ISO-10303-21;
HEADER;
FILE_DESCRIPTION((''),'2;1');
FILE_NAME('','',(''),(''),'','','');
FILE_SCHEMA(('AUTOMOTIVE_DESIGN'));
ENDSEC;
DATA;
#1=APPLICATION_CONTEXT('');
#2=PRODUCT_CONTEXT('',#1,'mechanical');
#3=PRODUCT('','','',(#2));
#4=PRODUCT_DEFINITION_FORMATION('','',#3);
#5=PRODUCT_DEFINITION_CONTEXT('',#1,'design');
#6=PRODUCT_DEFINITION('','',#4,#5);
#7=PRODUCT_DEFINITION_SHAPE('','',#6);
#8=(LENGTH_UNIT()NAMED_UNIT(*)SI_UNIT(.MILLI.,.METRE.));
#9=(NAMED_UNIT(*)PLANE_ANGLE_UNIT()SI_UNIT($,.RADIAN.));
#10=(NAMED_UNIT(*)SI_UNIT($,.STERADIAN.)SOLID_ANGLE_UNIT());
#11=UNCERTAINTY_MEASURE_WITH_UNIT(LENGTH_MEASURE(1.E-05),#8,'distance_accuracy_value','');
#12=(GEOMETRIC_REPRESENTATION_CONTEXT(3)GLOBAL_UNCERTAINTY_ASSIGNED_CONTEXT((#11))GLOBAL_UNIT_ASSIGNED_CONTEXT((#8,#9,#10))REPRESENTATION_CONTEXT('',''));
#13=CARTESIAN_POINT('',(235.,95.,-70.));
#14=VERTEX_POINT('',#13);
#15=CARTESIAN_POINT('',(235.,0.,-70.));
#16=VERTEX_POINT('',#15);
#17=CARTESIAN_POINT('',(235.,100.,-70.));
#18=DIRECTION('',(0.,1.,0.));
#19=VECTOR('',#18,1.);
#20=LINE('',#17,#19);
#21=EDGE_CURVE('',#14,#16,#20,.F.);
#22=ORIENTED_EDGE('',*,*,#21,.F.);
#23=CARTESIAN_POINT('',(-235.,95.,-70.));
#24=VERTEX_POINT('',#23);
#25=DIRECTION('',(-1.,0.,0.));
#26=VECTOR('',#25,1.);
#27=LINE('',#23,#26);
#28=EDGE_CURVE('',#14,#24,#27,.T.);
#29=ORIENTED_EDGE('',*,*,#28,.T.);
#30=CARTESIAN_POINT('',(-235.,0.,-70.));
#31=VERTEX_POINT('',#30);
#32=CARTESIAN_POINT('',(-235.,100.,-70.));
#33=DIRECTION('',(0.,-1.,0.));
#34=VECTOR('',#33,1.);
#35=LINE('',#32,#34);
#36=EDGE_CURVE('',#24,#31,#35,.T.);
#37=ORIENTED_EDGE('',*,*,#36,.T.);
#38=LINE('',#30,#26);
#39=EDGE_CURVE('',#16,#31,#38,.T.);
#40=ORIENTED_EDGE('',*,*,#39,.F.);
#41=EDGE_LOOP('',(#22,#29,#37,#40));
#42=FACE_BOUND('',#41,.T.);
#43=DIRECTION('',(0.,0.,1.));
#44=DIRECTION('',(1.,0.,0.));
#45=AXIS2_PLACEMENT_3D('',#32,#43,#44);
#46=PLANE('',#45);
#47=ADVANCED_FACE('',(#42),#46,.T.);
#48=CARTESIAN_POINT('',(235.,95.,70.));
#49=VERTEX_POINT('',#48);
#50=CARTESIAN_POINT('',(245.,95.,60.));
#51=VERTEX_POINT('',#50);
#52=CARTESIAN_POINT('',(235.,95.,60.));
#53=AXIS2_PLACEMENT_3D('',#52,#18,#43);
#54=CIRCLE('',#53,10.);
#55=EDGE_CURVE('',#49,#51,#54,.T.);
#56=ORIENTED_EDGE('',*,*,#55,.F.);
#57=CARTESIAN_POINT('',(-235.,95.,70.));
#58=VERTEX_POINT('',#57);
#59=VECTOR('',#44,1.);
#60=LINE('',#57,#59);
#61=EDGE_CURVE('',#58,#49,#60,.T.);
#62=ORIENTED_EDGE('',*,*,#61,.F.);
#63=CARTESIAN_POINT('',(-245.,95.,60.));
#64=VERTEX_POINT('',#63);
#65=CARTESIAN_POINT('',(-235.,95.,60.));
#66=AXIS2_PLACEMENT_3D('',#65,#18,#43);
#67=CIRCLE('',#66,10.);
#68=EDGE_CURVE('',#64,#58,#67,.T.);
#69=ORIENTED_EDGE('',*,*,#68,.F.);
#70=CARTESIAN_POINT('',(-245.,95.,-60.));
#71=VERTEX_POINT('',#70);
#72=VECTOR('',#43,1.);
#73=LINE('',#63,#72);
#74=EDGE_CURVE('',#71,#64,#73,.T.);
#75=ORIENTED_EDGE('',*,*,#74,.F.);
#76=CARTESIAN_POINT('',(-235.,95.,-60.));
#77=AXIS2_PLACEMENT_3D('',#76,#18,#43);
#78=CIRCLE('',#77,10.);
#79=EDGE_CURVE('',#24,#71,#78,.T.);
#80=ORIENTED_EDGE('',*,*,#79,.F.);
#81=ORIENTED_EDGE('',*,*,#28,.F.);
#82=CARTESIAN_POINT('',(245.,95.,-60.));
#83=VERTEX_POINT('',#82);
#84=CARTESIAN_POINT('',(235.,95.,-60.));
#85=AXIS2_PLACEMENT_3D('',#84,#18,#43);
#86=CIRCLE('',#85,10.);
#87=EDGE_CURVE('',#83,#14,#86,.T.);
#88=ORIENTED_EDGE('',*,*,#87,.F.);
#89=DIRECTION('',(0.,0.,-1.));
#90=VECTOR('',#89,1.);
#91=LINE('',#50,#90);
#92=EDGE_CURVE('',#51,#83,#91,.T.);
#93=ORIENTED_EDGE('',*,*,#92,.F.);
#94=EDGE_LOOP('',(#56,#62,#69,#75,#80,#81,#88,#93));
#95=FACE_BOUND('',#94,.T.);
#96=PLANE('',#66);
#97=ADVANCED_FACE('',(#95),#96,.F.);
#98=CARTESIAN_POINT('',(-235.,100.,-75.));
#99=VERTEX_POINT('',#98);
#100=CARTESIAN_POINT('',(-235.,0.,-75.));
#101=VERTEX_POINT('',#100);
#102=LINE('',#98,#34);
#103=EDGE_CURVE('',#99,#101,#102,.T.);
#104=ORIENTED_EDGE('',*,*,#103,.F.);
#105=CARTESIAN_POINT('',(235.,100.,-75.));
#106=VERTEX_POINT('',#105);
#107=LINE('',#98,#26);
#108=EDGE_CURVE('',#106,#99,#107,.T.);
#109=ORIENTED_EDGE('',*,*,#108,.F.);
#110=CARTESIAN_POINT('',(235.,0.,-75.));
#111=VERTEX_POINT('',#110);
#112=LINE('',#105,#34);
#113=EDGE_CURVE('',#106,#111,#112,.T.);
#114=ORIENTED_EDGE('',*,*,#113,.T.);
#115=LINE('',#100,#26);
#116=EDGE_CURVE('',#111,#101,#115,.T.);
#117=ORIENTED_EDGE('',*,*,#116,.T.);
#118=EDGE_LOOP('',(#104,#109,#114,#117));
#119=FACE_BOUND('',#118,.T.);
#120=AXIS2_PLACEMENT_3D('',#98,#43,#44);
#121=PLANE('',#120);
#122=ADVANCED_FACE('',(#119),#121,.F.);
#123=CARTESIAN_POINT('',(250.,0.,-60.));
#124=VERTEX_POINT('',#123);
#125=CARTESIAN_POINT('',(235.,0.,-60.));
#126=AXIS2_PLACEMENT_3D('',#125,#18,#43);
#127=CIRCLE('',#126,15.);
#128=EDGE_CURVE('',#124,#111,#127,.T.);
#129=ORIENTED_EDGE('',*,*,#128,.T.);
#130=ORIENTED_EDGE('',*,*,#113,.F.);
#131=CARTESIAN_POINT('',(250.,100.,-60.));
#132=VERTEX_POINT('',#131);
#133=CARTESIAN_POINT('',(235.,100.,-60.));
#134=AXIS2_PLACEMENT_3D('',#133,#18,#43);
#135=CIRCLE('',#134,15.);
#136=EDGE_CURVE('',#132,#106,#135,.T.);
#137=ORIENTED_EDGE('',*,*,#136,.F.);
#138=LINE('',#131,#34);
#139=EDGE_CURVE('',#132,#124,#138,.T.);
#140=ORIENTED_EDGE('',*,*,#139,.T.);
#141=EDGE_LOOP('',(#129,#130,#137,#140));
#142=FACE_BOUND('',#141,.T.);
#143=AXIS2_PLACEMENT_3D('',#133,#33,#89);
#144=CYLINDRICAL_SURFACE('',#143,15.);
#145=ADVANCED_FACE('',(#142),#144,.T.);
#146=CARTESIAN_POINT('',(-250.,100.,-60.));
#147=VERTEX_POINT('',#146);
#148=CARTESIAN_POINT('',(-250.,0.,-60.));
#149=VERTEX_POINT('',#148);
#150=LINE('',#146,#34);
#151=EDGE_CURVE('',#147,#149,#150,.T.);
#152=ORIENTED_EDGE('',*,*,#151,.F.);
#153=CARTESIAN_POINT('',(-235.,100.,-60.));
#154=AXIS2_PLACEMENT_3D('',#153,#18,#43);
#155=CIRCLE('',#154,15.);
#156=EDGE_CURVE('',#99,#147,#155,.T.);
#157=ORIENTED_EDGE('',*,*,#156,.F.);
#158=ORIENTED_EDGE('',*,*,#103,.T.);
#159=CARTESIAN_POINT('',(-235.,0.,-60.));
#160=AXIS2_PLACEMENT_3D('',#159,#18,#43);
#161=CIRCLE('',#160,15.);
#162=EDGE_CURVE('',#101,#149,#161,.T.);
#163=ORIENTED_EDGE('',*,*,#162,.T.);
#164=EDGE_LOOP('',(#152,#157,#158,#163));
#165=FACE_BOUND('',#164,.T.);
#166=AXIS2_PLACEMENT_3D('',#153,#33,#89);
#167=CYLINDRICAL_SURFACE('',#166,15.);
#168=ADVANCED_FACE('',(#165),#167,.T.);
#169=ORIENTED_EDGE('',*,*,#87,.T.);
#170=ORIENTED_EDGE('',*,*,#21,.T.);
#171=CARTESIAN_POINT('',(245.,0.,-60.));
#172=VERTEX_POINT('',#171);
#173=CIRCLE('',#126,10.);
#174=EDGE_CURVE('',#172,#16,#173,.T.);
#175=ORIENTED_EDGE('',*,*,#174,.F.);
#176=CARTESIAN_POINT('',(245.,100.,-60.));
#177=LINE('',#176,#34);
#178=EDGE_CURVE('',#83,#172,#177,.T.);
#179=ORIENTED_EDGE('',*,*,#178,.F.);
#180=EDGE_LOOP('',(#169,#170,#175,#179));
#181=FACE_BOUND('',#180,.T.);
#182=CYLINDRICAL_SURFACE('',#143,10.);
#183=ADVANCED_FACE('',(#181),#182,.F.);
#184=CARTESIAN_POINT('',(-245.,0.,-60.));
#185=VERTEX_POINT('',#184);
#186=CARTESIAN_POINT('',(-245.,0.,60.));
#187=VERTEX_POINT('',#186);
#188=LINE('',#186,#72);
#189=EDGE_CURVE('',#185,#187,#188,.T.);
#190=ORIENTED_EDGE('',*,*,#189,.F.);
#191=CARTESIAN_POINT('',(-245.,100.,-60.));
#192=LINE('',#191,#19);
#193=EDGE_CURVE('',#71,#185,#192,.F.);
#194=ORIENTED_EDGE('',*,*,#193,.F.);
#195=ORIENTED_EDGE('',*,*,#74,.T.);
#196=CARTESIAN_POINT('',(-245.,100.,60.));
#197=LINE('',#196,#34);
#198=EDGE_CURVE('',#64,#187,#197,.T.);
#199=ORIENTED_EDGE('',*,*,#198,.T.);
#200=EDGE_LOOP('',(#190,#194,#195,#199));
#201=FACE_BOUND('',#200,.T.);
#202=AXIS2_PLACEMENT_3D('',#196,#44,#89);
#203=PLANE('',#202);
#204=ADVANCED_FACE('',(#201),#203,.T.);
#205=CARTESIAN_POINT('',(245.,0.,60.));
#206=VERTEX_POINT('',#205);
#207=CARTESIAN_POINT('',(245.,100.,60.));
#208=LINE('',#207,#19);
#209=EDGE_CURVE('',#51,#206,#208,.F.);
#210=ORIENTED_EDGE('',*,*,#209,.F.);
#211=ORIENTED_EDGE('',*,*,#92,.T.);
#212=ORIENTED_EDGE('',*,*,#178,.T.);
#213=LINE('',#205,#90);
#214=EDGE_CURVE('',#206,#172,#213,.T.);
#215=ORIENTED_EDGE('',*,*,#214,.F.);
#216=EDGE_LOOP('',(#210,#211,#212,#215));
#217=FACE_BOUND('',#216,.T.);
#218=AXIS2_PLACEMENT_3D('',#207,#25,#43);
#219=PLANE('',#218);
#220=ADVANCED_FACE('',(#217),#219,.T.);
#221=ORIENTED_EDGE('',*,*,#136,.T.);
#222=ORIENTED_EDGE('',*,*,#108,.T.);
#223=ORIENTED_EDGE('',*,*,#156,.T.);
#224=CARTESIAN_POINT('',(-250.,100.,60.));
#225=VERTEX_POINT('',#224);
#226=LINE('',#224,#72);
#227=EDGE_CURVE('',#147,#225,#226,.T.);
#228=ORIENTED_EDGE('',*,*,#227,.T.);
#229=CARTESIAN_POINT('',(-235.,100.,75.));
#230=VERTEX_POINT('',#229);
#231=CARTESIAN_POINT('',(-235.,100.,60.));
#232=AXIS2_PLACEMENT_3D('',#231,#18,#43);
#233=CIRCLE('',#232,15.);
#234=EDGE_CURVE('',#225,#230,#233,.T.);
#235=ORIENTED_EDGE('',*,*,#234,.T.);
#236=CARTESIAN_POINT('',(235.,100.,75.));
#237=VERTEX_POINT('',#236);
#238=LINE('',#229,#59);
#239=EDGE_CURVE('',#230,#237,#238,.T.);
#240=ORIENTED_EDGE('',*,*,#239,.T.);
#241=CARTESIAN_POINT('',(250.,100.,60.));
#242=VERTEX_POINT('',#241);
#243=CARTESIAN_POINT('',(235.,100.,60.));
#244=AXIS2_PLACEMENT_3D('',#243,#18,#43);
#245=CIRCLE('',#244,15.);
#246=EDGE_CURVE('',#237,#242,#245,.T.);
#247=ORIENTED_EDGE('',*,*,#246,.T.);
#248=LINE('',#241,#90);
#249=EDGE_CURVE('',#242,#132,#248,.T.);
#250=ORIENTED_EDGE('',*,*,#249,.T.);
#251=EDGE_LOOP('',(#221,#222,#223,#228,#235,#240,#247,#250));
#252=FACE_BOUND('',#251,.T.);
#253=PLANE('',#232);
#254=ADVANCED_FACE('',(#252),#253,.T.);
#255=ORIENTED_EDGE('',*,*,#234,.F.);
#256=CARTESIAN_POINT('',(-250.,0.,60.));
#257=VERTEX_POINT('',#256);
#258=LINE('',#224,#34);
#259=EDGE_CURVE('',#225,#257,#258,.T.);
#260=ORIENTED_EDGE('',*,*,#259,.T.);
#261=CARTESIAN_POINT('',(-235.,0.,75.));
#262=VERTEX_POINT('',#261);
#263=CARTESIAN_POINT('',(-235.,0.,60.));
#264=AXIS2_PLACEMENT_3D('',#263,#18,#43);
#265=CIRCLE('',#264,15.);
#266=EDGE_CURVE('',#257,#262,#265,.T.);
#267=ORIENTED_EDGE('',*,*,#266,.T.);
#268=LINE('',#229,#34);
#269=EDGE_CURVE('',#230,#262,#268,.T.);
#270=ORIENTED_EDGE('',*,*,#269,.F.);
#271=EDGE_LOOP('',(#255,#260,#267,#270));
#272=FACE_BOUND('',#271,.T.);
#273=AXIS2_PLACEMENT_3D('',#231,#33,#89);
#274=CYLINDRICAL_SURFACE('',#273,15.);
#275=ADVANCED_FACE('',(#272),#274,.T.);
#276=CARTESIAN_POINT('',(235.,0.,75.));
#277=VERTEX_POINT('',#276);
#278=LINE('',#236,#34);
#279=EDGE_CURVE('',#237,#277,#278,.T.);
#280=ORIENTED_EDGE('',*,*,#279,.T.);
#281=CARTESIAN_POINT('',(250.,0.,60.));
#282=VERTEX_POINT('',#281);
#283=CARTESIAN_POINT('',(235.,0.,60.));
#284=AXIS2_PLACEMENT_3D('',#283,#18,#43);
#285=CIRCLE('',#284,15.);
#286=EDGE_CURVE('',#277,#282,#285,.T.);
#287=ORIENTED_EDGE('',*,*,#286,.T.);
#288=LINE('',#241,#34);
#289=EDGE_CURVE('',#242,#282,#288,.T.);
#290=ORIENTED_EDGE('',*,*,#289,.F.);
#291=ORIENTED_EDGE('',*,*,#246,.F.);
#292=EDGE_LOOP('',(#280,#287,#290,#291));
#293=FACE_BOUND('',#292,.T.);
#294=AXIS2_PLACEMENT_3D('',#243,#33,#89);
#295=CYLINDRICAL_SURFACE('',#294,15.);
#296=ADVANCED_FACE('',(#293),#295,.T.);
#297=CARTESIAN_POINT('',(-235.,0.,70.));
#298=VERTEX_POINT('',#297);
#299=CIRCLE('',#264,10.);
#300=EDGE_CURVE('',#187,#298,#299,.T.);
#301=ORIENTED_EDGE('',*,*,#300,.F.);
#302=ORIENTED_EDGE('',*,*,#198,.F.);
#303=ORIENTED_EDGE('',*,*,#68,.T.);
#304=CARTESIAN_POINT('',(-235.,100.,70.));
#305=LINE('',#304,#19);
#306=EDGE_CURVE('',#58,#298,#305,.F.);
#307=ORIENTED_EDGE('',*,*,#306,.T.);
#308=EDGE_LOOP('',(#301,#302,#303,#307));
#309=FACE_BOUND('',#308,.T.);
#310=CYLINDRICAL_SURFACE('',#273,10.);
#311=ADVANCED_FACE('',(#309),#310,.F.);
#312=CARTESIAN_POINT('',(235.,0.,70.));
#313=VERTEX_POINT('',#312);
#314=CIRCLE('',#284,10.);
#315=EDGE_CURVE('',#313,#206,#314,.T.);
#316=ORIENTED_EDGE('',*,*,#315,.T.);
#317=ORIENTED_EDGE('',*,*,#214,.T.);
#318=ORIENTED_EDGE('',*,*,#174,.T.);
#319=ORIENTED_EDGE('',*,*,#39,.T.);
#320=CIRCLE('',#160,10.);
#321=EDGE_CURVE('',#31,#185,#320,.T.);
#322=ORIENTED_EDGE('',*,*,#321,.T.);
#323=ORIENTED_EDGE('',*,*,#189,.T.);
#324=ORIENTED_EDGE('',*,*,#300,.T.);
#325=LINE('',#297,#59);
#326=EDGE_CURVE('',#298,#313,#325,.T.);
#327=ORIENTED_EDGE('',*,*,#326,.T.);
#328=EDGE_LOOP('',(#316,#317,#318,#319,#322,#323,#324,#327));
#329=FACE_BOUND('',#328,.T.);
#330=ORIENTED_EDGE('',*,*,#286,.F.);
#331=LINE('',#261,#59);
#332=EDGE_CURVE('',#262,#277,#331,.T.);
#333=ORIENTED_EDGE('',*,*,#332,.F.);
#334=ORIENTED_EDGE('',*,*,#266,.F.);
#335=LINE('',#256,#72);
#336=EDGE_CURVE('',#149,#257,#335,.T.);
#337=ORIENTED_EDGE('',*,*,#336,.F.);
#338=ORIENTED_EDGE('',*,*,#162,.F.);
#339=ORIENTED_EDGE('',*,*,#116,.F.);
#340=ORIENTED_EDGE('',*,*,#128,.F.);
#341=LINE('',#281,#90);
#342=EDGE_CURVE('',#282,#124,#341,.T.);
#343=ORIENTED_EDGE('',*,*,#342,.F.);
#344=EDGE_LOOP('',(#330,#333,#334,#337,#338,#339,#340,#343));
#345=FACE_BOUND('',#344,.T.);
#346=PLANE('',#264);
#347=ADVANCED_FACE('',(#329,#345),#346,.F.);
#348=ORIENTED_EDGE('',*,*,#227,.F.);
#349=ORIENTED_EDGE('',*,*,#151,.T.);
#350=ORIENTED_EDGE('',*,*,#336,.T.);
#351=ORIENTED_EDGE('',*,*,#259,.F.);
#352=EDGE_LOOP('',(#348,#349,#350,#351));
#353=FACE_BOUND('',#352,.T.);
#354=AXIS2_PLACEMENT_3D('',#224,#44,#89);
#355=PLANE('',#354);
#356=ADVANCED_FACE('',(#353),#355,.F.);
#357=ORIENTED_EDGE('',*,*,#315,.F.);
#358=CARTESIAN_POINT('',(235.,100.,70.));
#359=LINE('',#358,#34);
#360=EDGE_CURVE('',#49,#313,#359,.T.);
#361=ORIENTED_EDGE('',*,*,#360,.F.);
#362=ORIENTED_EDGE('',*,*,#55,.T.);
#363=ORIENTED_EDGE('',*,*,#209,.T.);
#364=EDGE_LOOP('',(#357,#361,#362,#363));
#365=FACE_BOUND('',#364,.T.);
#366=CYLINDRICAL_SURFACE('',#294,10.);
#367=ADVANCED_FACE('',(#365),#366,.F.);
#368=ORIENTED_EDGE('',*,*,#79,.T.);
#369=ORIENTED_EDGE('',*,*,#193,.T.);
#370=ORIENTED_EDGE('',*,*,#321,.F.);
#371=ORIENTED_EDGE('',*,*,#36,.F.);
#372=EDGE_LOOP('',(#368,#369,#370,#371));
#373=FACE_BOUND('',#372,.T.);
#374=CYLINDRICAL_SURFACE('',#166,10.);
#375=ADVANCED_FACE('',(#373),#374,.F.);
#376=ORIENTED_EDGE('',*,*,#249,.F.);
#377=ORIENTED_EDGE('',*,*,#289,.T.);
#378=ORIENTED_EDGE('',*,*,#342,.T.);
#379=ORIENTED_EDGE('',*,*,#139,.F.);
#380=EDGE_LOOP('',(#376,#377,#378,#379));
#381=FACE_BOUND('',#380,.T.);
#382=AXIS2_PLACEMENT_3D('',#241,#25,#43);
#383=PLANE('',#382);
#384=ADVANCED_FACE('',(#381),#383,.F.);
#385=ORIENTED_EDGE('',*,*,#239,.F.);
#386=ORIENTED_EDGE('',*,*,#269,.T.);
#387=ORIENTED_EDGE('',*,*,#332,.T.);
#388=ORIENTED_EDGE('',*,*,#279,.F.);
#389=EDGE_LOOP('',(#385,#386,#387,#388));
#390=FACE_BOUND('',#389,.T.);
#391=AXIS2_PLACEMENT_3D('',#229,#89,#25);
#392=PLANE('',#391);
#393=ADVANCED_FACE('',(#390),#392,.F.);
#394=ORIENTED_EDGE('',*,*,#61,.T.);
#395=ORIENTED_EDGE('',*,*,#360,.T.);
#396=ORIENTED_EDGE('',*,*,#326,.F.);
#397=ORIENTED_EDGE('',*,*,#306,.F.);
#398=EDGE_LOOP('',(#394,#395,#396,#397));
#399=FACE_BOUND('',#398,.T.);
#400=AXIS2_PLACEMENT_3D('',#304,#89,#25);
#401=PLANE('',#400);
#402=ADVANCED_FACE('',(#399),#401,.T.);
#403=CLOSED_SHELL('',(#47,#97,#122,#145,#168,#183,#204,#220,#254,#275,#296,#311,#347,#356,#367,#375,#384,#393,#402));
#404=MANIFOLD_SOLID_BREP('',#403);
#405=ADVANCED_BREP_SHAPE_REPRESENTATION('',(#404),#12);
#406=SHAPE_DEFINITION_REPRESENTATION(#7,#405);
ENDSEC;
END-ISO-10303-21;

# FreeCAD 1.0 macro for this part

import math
import FreeCAD as App
import Part
import Sketcher
from FreeCAD import Vector


def faces_at(feature, points):
    """Names of the faces that lie closest to the given points."""
    faces = feature.Shape.Faces
    near = lambda p: min(range(len(faces)), key=lambda i: faces[i].distToShape(Part.Vertex(*p))[0])
    return sorted({f"Face{near(p) + 1}" for p in points})

doc = App.newDocument("Part")
params = doc.addObject("Spreadsheet::Sheet", "Params")
for row, (alias, value) in enumerate([
    ("sketch1_radius", "15 mm"),
    ("sketch1_width", "470 mm"),
    ("sketch1_height", "120 mm"),
    ("pad1_length", "100 mm"),
    ("thickness_wall", "5 mm"),
], start=1):
    params.set(f"A{row}", alias)
    params.set(f"B{row}", "=" + value)
    params.setAlias(f"B{row}", alias)

body = doc.addObject("PartDesign::Body", "Body")

# Sketch on XZ plane
sketch1 = body.newObject("Sketcher::SketchObject", "Sketch")
sketch1.AttachmentSupport = (doc.getObject("XZ_Plane"), [""])
sketch1.MapMode = "FlatFace"
sketch1.addGeometry([
    Part.LineSegment(Vector(-235, 75, 0), Vector(235, 75, 0)),  # 0
    Part.ArcOfCircle(Part.Circle(Vector(235, 60, 0), Vector(0, 0, 1), 15), math.radians(0), math.radians(90)),  # 1
    Part.LineSegment(Vector(250, 60, 0), Vector(250, -60, 0)),  # 2
    Part.ArcOfCircle(Part.Circle(Vector(235, -60, 0), Vector(0, 0, 1), 15), math.radians(-90), math.radians(0)),  # 3
    Part.LineSegment(Vector(235, -75, 0), Vector(-235, -75, 0)),  # 4
    Part.ArcOfCircle(Part.Circle(Vector(-235, -60, 0), Vector(0, 0, 1), 15), math.radians(180), math.radians(270)),  # 5
    Part.LineSegment(Vector(-250, -60, 0), Vector(-250, 60, 0)),  # 6
    Part.ArcOfCircle(Part.Circle(Vector(-235, 60, 0), Vector(0, 0, 1), 15), math.radians(90), math.radians(180)),  # 7
], False)
sketch1.addConstraint([
    Sketcher.Constraint("Tangent", 0, 2, 1, 2),
    Sketcher.Constraint("Tangent", 1, 1, 2, 1),
    Sketcher.Constraint("Tangent", 2, 2, 3, 2),
    Sketcher.Constraint("Tangent", 3, 1, 4, 1),
    Sketcher.Constraint("Tangent", 4, 2, 5, 2),
    Sketcher.Constraint("Tangent", 5, 1, 6, 1),
    Sketcher.Constraint("Tangent", 6, 2, 7, 2),
    Sketcher.Constraint("Tangent", 7, 1, 0, 1),
    Sketcher.Constraint("Horizontal", 0),
    Sketcher.Constraint("Vertical", 2),
    Sketcher.Constraint("Horizontal", 4),
    Sketcher.Constraint("Vertical", 6),
    Sketcher.Constraint("Equal", 1, 3),
    Sketcher.Constraint("Equal", 3, 5),
    Sketcher.Constraint("Equal", 5, 7),
    Sketcher.Constraint("Symmetric", 1, 3, 5, 3, -1, 1),
    Sketcher.Constraint("Radius", 1, 15.0),
    Sketcher.Constraint("DistanceX", 0, 1, 0, 2, 470.0),
    Sketcher.Constraint("DistanceY", 2, 2, 2, 1, 120.0),
])
sketch1.setExpression("Constraints[16]", "Params.sketch1_radius")
sketch1.setExpression("Constraints[17]", "Params.sketch1_width")
sketch1.setExpression("Constraints[18]", "Params.sketch1_height")
pad1 = body.newObject("PartDesign::Pad", "Pad")
pad1.Profile = sketch1
pad1.setExpression("Length", "Params.pad1_length")
pad1.Reversed = True
doc.recompute()

thickness = body.newObject("PartDesign::Thickness", "Thickness")
thickness.Base = (pad1, faces_at(pad1, [(0, 0, 0)]))
thickness.setExpression("Value", "Params.thickness_wall")
thickness.Reversed = True
thickness.Join = "Intersection"

doc.recompute()
